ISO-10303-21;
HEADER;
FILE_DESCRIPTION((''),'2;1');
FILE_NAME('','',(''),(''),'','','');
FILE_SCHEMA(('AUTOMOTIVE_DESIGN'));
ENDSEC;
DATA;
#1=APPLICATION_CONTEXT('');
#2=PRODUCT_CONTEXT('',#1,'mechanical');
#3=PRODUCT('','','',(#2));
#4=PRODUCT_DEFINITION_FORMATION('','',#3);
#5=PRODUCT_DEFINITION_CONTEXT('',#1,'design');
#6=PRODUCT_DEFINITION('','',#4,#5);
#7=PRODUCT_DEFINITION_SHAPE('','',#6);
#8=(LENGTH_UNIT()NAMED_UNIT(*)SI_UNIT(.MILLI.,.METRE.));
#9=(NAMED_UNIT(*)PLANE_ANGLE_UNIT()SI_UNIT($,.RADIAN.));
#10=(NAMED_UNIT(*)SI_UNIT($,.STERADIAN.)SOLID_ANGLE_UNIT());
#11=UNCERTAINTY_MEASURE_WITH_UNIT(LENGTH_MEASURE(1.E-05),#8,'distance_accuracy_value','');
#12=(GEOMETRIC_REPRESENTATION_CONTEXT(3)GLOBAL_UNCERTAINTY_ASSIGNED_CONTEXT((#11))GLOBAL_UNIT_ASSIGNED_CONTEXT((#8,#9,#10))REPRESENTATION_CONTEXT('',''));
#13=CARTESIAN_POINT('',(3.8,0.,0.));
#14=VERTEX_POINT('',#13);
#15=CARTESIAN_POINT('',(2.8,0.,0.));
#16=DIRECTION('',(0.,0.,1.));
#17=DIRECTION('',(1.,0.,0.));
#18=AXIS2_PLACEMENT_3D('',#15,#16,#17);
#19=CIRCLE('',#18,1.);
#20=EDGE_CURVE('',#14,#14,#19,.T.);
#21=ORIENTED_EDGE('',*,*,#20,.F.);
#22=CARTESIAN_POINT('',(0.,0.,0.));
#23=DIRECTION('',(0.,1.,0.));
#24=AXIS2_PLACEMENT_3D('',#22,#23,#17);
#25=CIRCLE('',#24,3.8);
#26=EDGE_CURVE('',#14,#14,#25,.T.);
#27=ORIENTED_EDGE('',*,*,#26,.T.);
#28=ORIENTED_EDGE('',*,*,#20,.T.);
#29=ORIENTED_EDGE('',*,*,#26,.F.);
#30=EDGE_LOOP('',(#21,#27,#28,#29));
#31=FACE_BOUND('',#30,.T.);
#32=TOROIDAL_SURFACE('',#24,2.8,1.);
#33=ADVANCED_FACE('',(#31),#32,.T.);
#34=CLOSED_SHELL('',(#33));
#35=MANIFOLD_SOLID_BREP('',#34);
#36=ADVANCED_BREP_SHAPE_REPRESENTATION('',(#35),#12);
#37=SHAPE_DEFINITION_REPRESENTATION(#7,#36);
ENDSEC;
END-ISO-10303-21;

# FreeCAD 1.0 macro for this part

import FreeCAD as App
import Part
import Sketcher

doc = App.newDocument("Part")
body = doc.addObject("PartDesign::Body", "Body")

# Sketch on XY plane
sketch1 = doc.addObject("Sketcher::SketchObject", "Sketch")
body.addObject(sketch1)
sketch1.AttachmentSupport = (doc.XY_Plane, [""])
sketch1.MapMode = "FlatFace"
sketch1.addGeometry(Part.Circle(App.Vector(2.8, 0, 0), App.Vector(0, 0, 1), 1), False)
sketch1.addConstraint([
    Sketcher.Constraint("PointOnObject", 0, 3, -1),
    Sketcher.Constraint("Diameter", 0, 2.0),
    Sketcher.Constraint("DistanceX", -1, 1, 0, 3, 2.8),
])
revolution = doc.addObject("PartDesign::Revolution", "Revolution")
body.addObject(revolution)
revolution.Profile = sketch1
revolution.ReferenceAxis = (sketch1, ["V_Axis"])
revolution.Angle = 360

doc.recompute()
